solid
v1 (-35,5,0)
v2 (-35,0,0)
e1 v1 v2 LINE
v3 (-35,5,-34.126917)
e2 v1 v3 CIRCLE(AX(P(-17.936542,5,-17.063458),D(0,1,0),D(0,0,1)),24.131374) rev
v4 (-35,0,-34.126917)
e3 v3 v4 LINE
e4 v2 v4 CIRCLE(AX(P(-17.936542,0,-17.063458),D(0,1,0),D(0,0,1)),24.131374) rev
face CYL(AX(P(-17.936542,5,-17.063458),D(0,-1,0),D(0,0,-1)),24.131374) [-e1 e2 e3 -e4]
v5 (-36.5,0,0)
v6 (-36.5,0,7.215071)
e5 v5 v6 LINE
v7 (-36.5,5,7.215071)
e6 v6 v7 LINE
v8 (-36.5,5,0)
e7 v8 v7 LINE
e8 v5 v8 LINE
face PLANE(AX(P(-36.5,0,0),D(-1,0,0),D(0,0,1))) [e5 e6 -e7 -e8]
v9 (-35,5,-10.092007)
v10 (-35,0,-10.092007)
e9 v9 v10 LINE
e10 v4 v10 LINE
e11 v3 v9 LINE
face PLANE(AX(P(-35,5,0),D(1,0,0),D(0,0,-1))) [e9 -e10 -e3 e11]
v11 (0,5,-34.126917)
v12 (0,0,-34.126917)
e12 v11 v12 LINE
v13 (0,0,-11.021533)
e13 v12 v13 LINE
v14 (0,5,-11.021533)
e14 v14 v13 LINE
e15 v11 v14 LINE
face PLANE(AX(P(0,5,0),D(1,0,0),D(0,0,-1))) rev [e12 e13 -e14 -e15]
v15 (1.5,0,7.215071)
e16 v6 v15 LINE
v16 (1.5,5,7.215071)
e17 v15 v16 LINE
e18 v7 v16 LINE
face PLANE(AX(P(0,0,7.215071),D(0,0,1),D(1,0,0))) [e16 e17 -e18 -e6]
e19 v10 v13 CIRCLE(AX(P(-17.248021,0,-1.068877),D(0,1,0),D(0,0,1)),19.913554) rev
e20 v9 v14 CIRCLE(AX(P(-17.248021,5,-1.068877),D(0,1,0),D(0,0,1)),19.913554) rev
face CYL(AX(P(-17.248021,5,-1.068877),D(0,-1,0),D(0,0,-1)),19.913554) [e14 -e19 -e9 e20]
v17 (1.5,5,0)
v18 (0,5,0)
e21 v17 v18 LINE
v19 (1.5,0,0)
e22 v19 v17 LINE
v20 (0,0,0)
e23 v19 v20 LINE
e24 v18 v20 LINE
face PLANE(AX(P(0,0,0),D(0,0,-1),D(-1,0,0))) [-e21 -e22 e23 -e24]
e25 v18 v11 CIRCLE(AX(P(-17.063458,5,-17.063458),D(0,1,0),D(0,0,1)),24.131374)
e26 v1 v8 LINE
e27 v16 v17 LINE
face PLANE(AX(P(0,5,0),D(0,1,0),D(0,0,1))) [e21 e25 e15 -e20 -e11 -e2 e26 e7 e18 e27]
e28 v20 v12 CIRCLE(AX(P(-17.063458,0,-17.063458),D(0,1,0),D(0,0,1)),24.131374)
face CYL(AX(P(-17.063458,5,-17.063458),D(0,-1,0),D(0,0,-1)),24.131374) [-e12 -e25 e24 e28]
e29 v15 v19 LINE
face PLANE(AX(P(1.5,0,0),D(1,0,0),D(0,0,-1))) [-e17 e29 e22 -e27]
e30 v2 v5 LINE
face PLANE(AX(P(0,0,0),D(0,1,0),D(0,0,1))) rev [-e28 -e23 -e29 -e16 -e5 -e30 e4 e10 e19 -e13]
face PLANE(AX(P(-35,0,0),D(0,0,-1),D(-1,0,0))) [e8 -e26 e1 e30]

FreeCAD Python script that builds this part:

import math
import FreeCAD as App
import Part
import Sketcher

V = App.Vector


def add_polygon(sketch, points):
    """Adds a closed chain of lines whose ends are joined by coincident constraints."""
    first, n = sketch.GeometryCount, len(points)
    for a, b in zip(points, points[1:] + points[:1]):
        sketch.addGeometry(Part.LineSegment(App.Vector(*a, 0), App.Vector(*b, 0)), False)
    for i in range(n):
        sketch.addConstraint(Sketcher.Constraint("Coincident", first + i, 2, first + (i + 1) % n, 1))

doc = App.newDocument("Part")
body = doc.addObject("PartDesign::Body", "Body")

# Sketch on XZ plane
sketch1 = body.newObject("Sketcher::SketchObject", "Sketch")
sketch1.AttachmentSupport = (doc.getObject("XZ_Plane"), [""])
sketch1.MapMode = "FlatFace"
sketch1.addGeometry([
    Part.LineSegment(V(-35, -10, 0), V(-35, -34, 0)),  # 0
    Part.ArcOfCircle(Part.Circle(V(-18, -17, 0), V(0, 0, 1), 24), math.radians(135), math.radians(225)),  # 1
    Part.ArcOfCircle(Part.Circle(V(-18, -55, 0), V(0, 0, 1), 57), math.radians(72), math.radians(108)),  # 2
    Part.ArcOfCircle(Part.Circle(V(-17, -17, 0), V(0, 0, 1), 24), math.radians(-45), math.radians(45)),  # 3
    Part.LineSegment(V(0, -34, 0), V(0, -11, 0)),  # 4
    Part.ArcOfCircle(Part.Circle(V(-17, -1, 0), V(0, 0, 1), 20), math.radians(-153), math.radians(-30)),  # 5
], False)
sketch1.addConstraint([
    Sketcher.Constraint("Coincident", 0, 2, 1, 2),
    Sketcher.Constraint("Coincident", 1, 1, 2, 2),
    Sketcher.Constraint("Coincident", 2, 1, 3, 2),
    Sketcher.Constraint("Coincident", 3, 1, 4, 1),
    Sketcher.Constraint("Coincident", 4, 2, 5, 2),
    Sketcher.Constraint("Coincident", 5, 1, 0, 1),
    Sketcher.Constraint("Vertical", 0),
    Sketcher.Constraint("Vertical", 4),
    Sketcher.Constraint("Coincident", 2, 1, -1, 1),
    Sketcher.Constraint("Equal", 1, 3),
    Sketcher.Constraint("PointOnObject", 1, 1, -1),
    Sketcher.Constraint("PointOnObject", 3, 1, -2),
    Sketcher.Constraint("Horizontal", 1, 3, 3, 3),
    Sketcher.Constraint("Horizontal", 0, 2, 3, 1),
    Sketcher.Constraint("DistanceX", 0, 2, -1, 1, 35.0),
    Sketcher.Constraint("Radius", 1, 24.131374),
    Sketcher.Constraint("Radius", 2, 57.396558),
    Sketcher.Constraint("Radius", 5, 19.913554),
    Sketcher.Constraint("DistanceY", 0, 2, 0, 1, 24.03491),
    Sketcher.Constraint("DistanceY", 4, 1, 4, 2, 23.105383),
    Sketcher.Constraint("DistanceX", 1, 3, -1, 1, 17.936542),
])
pad1 = body.newObject("PartDesign::Pad", "Pad")
pad1.Profile = sketch1
pad1.Length = 5
pad1.Reversed = True

# Sketch on XZ plane
sketch2 = body.newObject("Sketcher::SketchObject", "Sketch001")
sketch2.AttachmentSupport = (doc.getObject("XZ_Plane"), [""])
sketch2.MapMode = "FlatFace"
sketch2.addGeometry([
    Part.LineSegment(V(0, 7, 0), V(0, 0, 0)),  # 0
    Part.ArcOfCircle(Part.Circle(V(-17, -17, 0), V(0, 0, 1), 24), math.radians(-45), math.radians(45)),  # 1
    Part.LineSegment(V(0, -34, 0), V(0, -11, 0)),  # 2
    Part.ArcOfCircle(Part.Circle(V(-17, -1, 0), V(0, 0, 1), 20), math.radians(-153), math.radians(-30)),  # 3
    Part.LineSegment(V(-35, -10, 0), V(-35, -34, 0)),  # 4
    Part.ArcOfCircle(Part.Circle(V(-18, -17, 0), V(0, 0, 1), 24), math.radians(135), math.radians(225)),  # 5
    Part.LineSegment(V(-35, 0, 0), V(-35, 7, 0)),  # 6
    Part.LineSegment(V(-35, 7, 0), V(0, 7, 0)),  # 7
], False)
sketch2.addConstraint([
    Sketcher.Constraint("Coincident", 0, 2, 1, 2),
    Sketcher.Constraint("Coincident", 1, 1, 2, 1),
    Sketcher.Constraint("Coincident", 2, 2, 3, 2),
    Sketcher.Constraint("Coincident", 3, 1, 4, 1),
    Sketcher.Constraint("Coincident", 4, 2, 5, 2),
    Sketcher.Constraint("Coincident", 5, 1, 6, 1),
    Sketcher.Constraint("Coincident", 6, 2, 7, 1),
    Sketcher.Constraint("Coincident", 7, 2, 0, 1),
    Sketcher.Constraint("Vertical", 0),
    Sketcher.Constraint("Vertical", 2),
    Sketcher.Constraint("Vertical", 4),
    Sketcher.Constraint("Vertical", 6),
    Sketcher.Constraint("Horizontal", 7),
    Sketcher.Constraint("Coincident", 0, 2, -1, 1),
    Sketcher.Constraint("Equal", 1, 5),
    Sketcher.Constraint("PointOnObject", 1, 1, -2),
    Sketcher.Constraint("PointOnObject", 5, 1, -1),
    Sketcher.Constraint("Horizontal", 1, 3, 5, 3),
    Sketcher.Constraint("Horizontal", 1, 1, 4, 2),
    Sketcher.Constraint("DistanceX", 7, 1, 7, 2, 35.0),
    Sketcher.Constraint("Radius", 1, 24.131374),
    Sketcher.Constraint("Radius", 3, 19.913554),
    Sketcher.Constraint("DistanceY", 0, 2, 0, 1, 7.215071),
    Sketcher.Constraint("DistanceY", 4, 2, 4, 1, 24.03491),
    Sketcher.Constraint("DistanceY", 2, 1, 2, 2, 23.105383),
    Sketcher.Constraint("DistanceX", 1, 3, -1, 1, 17.063458),
])
pad2 = body.newObject("PartDesign::Pad", "Pad001")
pad2.Profile = sketch2
pad2.Length = 5
pad2.Reversed = True

# Sketch on XZ plane
sketch3 = body.newObject("Sketcher::SketchObject", "Sketch002")
sketch3.AttachmentSupport = (doc.getObject("XZ_Plane"), [""])
sketch3.MapMode = "FlatFace"
sketch3.AttachmentOffset = App.Placement(V(0, 0, -5), App.Rotation())
add_polygon(sketch3, [(-36.5, 0), (-36.5, 7.2), (-35, 7.2), (-35, 0)])  # lines 0-3
add_polygon(sketch3, [(0, 0), (0, 7.2), (1.5, 7.2), (1.5, 0)])  # lines 4-7
sketch3.addConstraint([
    Sketcher.Constraint("Vertical", 0),
    Sketcher.Constraint("Horizontal", 1),
    Sketcher.Constraint("Vertical", 2),
    Sketcher.Constraint("Horizontal", 3),
    Sketcher.Constraint("Vertical", 4),
    Sketcher.Constraint("Horizontal", 5),
    Sketcher.Constraint("Vertical", 6),
    Sketcher.Constraint("Horizontal", 7),
    Sketcher.Constraint("Coincident", 7, 2, -1, 1),
    Sketcher.Constraint("PointOnObject", 2, 2, -1),
    Sketcher.Constraint("Horizontal", 1, 2, 4, 2),
    Sketcher.Constraint("Equal", 3, 5),
    Sketcher.Constraint("DistanceX", 1, 1, 1, 2, 1.5),
    Sketcher.Constraint("DistanceX", 1, 2, -1, 1, 35.0),
    Sketcher.Constraint("DistanceY", 0, 1, 0, 2, 7.215071),
])
pad3 = body.newObject("PartDesign::Pad", "Pad002")
pad3.Profile = sketch3
pad3.Length = 5

doc.recompute()
